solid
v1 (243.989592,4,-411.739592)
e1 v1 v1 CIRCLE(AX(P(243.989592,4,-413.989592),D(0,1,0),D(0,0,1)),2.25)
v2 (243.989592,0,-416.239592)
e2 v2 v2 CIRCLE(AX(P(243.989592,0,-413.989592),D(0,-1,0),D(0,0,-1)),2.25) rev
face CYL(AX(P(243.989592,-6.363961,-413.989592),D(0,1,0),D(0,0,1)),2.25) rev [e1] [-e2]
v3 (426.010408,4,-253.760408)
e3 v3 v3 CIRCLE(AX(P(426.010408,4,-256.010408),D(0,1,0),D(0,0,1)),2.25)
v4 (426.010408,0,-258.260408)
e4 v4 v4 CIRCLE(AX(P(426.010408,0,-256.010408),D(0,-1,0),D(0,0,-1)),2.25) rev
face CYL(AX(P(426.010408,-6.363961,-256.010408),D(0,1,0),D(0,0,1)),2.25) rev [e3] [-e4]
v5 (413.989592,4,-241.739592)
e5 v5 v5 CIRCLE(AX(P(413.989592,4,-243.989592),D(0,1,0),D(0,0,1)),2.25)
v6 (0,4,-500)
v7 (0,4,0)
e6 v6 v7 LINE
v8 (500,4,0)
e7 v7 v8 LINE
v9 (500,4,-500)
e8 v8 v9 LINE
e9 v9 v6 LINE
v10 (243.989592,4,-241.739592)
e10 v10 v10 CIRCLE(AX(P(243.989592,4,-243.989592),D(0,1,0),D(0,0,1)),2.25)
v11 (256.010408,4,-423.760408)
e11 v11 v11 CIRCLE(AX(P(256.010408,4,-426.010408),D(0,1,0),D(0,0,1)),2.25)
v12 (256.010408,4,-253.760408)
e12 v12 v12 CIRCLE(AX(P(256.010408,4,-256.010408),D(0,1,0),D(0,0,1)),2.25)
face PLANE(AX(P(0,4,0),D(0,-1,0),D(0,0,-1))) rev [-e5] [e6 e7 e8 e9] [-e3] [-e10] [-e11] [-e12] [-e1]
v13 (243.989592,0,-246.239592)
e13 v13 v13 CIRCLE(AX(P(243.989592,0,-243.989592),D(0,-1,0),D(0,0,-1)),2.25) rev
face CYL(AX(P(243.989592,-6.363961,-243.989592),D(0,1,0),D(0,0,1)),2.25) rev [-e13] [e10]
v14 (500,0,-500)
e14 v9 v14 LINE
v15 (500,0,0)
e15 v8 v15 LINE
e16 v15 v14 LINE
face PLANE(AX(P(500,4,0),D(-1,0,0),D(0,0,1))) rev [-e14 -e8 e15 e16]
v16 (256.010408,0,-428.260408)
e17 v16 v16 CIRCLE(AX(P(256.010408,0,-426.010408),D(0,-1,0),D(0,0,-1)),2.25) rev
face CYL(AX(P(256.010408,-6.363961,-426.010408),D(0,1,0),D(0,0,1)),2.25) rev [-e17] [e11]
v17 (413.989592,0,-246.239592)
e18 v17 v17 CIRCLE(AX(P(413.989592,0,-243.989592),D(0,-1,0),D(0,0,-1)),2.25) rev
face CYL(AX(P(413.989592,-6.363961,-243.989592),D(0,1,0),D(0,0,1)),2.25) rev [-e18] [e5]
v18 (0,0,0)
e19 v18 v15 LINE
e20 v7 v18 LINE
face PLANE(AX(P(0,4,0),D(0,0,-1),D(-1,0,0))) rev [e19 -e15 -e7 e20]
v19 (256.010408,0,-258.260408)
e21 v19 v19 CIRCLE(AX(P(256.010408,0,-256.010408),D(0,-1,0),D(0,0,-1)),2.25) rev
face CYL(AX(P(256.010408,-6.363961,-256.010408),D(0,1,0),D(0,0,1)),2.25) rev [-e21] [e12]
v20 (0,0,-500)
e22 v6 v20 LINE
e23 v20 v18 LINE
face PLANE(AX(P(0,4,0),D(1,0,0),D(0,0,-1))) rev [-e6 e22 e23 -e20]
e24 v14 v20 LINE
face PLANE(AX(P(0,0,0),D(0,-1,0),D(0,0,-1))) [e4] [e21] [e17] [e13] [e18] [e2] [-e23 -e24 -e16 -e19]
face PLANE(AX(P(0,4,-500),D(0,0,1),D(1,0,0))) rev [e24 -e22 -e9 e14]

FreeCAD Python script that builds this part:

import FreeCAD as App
import Part
import Sketcher

V = App.Vector

doc = App.newDocument("Part")
body = doc.addObject("PartDesign::Body", "Body")

# Sketch on XZ plane
sketch1 = body.newObject("Sketcher::SketchObject", "Sketch")
sketch1.AttachmentSupport = (doc.getObject("XZ_Plane"), [""])
sketch1.MapMode = "FlatFace"
sketch1.addGeometry(Part.LineSegment(V(0, -500, 0), V(0, 0, 0)), False)
sketch1.addGeometry(Part.LineSegment(V(0, 0, 0), V(500, 0, 0)), False)
sketch1.addGeometry(Part.LineSegment(V(500, 0, 0), V(500, -500, 0)), False)
sketch1.addGeometry(Part.LineSegment(V(500, -500, 0), V(0, -500, 0)), False)
sketch1.addConstraint(Sketcher.Constraint("Coincident", 0, 2, 1, 1))
sketch1.addConstraint(Sketcher.Constraint("Coincident", 1, 2, 2, 1))
sketch1.addConstraint(Sketcher.Constraint("Coincident", 2, 2, 3, 1))
sketch1.addConstraint(Sketcher.Constraint("Coincident", 3, 2, 0, 1))
sketch1.addConstraint(Sketcher.Constraint("Vertical", 0))
sketch1.addConstraint(Sketcher.Constraint("Horizontal", 1))
sketch1.addConstraint(Sketcher.Constraint("Vertical", 2))
sketch1.addConstraint(Sketcher.Constraint("Horizontal", 3))
sketch1.addConstraint(Sketcher.Constraint("Coincident", 0, 2, -1, 1))
sketch1.addConstraint(Sketcher.Constraint("Equal", 3, 0))
sketch1.addConstraint(Sketcher.Constraint("DistanceX", 1, 1, 1, 2, 500.0))
pad1 = body.newObject("PartDesign::Pad", "Pad")
pad1.Profile = sketch1
pad1.Length = 4
pad1.Reversed = True

# Sketch on XZ plane
sketch2 = body.newObject("Sketcher::SketchObject", "Sketch001")
sketch2.AttachmentSupport = (doc.getObject("XZ_Plane"), [""])
sketch2.MapMode = "FlatFace"
sketch2.AttachmentOffset = App.Placement(V(0, 0, -4), App.Rotation())
sketch2.addGeometry(Part.Circle(V(256, -256, 0), V(0, 0, 1), 2.2), False)
sketch2.addGeometry(Part.Circle(V(244, -244, 0), V(0, 0, 1), 2.2), False)
sketch2.addGeometry(Part.Circle(V(426, -256, 0), V(0, 0, 1), 2.2), False)
sketch2.addGeometry(Part.Circle(V(414, -244, 0), V(0, 0, 1), 2.2), False)
sketch2.addGeometry(Part.Circle(V(244, -414, 0), V(0, 0, 1), 2.2), False)
sketch2.addGeometry(Part.Circle(V(256, -426, 0), V(0, 0, 1), 2.2), False)
sketch2.addConstraint(Sketcher.Constraint("Equal", 0, 1))
sketch2.addConstraint(Sketcher.Constraint("Equal", 1, 2))
sketch2.addConstraint(Sketcher.Constraint("Equal", 2, 3))
sketch2.addConstraint(Sketcher.Constraint("Equal", 3, 4))
sketch2.addConstraint(Sketcher.Constraint("Equal", 4, 5))
sketch2.addConstraint(Sketcher.Constraint("Horizontal", 0, 3, 2, 3))
sketch2.addConstraint(Sketcher.Constraint("Horizontal", 1, 3, 3, 3))
sketch2.addConstraint(Sketcher.Constraint("Vertical", 1, 3, 4, 3))
sketch2.addConstraint(Sketcher.Constraint("Vertical", 0, 3, 5, 3))
sketch2.addConstraint(Sketcher.Constraint("Diameter", 0, 4.5))
sketch2.addConstraint(Sketcher.Constraint("DistanceX", 0, 3, 2, 3, 170.0))
sketch2.addConstraint(Sketcher.Constraint("DistanceX", 1, 3, 3, 3, 170.0))
sketch2.addConstraint(Sketcher.Constraint("DistanceY", 4, 3, 1, 3, 170.0))
sketch2.addConstraint(Sketcher.Constraint("DistanceY", 5, 3, 0, 3, 170.0))
sketch2.addConstraint(Sketcher.Constraint("DistanceX", -1, 1, 0, 3, 256.010408))
sketch2.addConstraint(Sketcher.Constraint("DistanceY", 0, 3, -1, 1, 256.010408))
sketch2.addConstraint(Sketcher.Constraint("DistanceX", -1, 1, 1, 3, 243.989592))
sketch2.addConstraint(Sketcher.Constraint("DistanceY", 1, 3, -1, 1, 243.989592))
pocket1 = body.newObject("PartDesign::Pocket", "Pocket")
pocket1.Profile = sketch2
pocket1.Length = 4
pocket1.Reversed = True

doc.recompute()
